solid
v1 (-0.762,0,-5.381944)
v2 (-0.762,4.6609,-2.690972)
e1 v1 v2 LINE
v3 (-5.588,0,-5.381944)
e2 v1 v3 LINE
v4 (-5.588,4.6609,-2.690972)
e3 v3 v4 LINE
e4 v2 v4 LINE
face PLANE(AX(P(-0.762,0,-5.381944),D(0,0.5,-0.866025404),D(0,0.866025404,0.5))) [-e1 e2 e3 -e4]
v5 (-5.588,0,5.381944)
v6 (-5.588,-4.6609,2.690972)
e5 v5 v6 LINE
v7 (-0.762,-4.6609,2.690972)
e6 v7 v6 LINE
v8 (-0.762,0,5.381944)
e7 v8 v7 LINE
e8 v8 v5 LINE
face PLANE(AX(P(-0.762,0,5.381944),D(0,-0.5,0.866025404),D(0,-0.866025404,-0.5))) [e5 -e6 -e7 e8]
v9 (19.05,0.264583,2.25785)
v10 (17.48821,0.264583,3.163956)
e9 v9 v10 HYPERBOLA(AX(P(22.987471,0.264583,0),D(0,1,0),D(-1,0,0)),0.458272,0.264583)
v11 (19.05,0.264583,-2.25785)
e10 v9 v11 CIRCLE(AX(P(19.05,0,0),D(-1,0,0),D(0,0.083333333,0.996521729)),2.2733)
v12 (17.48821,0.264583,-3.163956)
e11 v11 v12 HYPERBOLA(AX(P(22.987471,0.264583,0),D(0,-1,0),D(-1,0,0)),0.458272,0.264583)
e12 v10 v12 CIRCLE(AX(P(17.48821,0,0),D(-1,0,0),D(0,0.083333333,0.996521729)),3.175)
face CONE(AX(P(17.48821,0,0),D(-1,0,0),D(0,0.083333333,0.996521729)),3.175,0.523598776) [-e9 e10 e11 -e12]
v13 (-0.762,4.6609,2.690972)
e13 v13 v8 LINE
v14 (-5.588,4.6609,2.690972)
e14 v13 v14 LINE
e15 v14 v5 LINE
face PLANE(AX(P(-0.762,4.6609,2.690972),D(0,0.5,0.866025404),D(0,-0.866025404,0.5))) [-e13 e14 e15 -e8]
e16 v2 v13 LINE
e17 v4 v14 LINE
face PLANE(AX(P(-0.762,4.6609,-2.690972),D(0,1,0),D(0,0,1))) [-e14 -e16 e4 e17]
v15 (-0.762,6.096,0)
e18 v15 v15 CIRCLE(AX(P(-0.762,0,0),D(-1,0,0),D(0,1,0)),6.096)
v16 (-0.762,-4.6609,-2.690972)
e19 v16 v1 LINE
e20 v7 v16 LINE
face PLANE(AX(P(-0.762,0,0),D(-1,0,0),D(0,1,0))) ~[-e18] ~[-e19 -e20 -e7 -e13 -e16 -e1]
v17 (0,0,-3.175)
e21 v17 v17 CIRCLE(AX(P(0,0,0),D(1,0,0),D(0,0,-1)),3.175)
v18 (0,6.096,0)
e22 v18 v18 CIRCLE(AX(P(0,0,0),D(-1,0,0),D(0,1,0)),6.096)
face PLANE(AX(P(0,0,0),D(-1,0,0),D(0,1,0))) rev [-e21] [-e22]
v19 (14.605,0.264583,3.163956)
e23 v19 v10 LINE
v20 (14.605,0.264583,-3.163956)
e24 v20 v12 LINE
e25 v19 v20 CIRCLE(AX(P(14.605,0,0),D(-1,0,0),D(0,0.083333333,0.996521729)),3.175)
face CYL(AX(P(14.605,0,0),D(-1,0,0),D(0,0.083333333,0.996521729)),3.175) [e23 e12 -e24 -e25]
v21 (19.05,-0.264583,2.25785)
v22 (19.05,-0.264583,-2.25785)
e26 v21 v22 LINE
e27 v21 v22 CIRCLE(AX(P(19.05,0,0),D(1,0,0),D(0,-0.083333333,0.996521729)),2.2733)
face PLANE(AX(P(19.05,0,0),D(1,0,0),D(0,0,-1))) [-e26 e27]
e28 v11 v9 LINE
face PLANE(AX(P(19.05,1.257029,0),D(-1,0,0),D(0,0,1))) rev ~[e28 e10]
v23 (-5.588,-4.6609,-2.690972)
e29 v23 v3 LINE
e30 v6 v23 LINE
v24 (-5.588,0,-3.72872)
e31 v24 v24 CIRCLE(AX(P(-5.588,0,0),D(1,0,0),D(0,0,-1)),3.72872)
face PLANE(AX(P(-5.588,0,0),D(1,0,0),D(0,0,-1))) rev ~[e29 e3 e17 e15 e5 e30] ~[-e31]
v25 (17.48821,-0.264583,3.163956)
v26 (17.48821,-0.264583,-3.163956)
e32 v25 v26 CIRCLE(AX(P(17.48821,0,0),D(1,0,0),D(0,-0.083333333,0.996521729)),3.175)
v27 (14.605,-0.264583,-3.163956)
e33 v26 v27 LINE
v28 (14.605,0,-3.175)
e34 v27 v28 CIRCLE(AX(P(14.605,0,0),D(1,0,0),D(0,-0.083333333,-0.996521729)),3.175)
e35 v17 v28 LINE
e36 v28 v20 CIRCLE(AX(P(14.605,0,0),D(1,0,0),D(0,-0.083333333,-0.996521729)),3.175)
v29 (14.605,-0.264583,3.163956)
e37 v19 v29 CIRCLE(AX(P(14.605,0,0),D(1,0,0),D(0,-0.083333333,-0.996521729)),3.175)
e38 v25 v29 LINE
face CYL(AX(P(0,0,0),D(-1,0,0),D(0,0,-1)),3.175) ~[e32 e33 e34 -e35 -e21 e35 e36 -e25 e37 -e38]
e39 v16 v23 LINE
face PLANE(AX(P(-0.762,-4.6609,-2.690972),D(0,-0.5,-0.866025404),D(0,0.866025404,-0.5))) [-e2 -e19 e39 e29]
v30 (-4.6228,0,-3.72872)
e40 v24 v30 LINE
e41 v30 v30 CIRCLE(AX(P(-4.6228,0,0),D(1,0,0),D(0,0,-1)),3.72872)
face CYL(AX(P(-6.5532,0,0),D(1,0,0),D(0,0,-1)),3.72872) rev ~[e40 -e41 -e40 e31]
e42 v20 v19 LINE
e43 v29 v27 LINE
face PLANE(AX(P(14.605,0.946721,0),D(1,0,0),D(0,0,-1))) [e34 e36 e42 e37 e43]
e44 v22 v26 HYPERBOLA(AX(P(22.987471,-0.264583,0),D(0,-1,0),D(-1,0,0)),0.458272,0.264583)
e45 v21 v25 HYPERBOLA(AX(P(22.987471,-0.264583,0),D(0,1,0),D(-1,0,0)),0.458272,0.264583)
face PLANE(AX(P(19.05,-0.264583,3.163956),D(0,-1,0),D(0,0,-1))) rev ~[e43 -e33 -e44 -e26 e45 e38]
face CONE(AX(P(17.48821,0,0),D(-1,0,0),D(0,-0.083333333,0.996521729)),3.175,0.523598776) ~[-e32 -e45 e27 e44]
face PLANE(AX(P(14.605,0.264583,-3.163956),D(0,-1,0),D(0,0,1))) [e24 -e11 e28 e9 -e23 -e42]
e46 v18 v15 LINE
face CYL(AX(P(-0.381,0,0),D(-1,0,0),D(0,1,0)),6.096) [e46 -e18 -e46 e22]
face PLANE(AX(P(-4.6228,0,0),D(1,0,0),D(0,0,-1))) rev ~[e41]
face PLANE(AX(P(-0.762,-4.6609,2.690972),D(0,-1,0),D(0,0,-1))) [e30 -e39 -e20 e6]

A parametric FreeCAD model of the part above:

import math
import FreeCAD as App
import Part
import Sketcher

V = App.Vector
Q = App.Units.Quantity


def edges_at(feature, points):
    """Names of the edges that pass closest to the given points."""
    edges = feature.Shape.Edges
    near = lambda p: min(range(len(edges)), key=lambda i: edges[i].distToShape(Part.Vertex(*p))[0])
    return sorted({f"Edge{near(p) + 1}" for p in points})


def add_polygon(sketch, points):
    """Adds a closed chain of lines whose ends are joined by coincident constraints."""
    first, n = sketch.GeometryCount, len(points)
    for a, b in zip(points, points[1:] + points[:1]):
        sketch.addGeometry(Part.LineSegment(App.Vector(*a, 0), App.Vector(*b, 0)), False)
    for i in range(n):
        sketch.addConstraint(Sketcher.Constraint("Coincident", first + i, 2, first + (i + 1) % n, 1))

doc = App.newDocument("Part")
params = doc.addObject("Spreadsheet::Sheet", "Params")
for row, (alias, value) in enumerate([
    ("sketch1_width", "0.03 in"),
    ("sketch1_height", "0.24 in"),
    ("revolution_angle", "360 deg"),
    ("sketch2_diameter", "0.25 in"),
    ("pad1_length", "0.75 in"),
    ("sketch3_radius", "0.125 in"),
    ("pocket1_length", "0.175 in"),
    ("sketch4_radius", "0.125 in"),
    ("pad2_length", "0.175 in"),
    ("pad3_length", "0.19 in"),
    ("hole_diameter", "0.2936 in"),
    ("hole_depth", "0.038 in"),
    ("chamfer_size", "0.0355 in"),
    ("chamfer_size2", "1.56179 mm"),
    ("chamfer2_size", "0.0355 in"),
    ("chamfer2_size2", "1.56179 mm"),
], start=1):
    params.set(f"A{row}", alias)
    params.set(f"B{row}", "=" + value)
    params.setAlias(f"B{row}", alias)

body = doc.addObject("PartDesign::Body", "Body")

sketch1 = body.newObject("Sketcher::SketchObject", "Sketch")
sketch1.AttachmentSupport = (doc.getObject("XY_Plane"), [""])
sketch1.MapMode = "FlatFace"
add_polygon(sketch1, [(0, 6.096), (0, 0), (-0.762, 0), (-0.762, 6.096)])
sketch1.addConstraint([
    Sketcher.Constraint("Vertical", 0),
    Sketcher.Constraint("Horizontal", 1),
    Sketcher.Constraint("Vertical", 2),
    Sketcher.Constraint("Horizontal", 3),
    Sketcher.Constraint("Coincident", 0, 2, -1, 1),
    Sketcher.Constraint("DistanceX", 1, 2, 1, 1, Q("0.03 in")),
    Sketcher.Constraint("DistanceY", 0, 2, 0, 1, Q("0.24 in")),
])
sketch1.setExpression("Constraints[9]", "Params.sketch1_width")
sketch1.setExpression("Constraints[10]", "Params.sketch1_height")
revolution = body.newObject("PartDesign::Revolution", "Revolution")
revolution.Profile = sketch1
revolution.ReferenceAxis = (sketch1, ["H_Axis"])
revolution.setExpression("Angle", "Params.revolution_angle")

sketch2 = body.newObject("Sketcher::SketchObject", "Sketch001")
sketch2.AttachmentSupport = (doc.getObject("YZ_Plane"), [""])
sketch2.MapMode = "FlatFace"
sketch2.addGeometry(Part.Circle(V(0, 0, 0), V(0, 0, 1), 3.175), False)
sketch2.addConstraint([
    Sketcher.Constraint("Coincident", 0, 3, -1, 1),
    Sketcher.Constraint("Diameter", 0, Q("0.25 in")),
])
sketch2.setExpression("Constraints[1]", "Params.sketch2_diameter")
pad1 = body.newObject("PartDesign::Pad", "Pad")
pad1.Profile = sketch2
pad1.setExpression("Length", "Params.pad1_length")

sketch3 = body.newObject("Sketcher::SketchObject", "Sketch002")
sketch3.AttachmentSupport = (doc.getObject("YZ_Plane"), [""])
sketch3.MapMode = "FlatFace"
sketch3.AttachmentOffset = App.Placement(V(0, 0, 0.75 * 25.4), App.Rotation())
sketch3.addGeometry([
    Part.LineSegment(V(-0.264583, 3.163956, 0), V(-0.264583, -3.163956, 0)),
    Part.ArcOfCircle(Part.Circle(V(0, 0, 0), V(0, 0, 1), 3.175), math.radians(-94.780192), math.radians(94.780192)),
], False)
sketch3.addConstraint([
    Sketcher.Constraint("Coincident", 0, 1, 1, 2),
    Sketcher.Constraint("Coincident", 1, 1, 0, 2),
    Sketcher.Constraint("Vertical", 0),
    Sketcher.Constraint("Coincident", 1, 3, -1, 1),
    Sketcher.Constraint("Radius", 1, Q("0.125 in")),
    Sketcher.Constraint("DistanceY", 0, 2, 0, 1, 6.327913),
])
sketch3.setExpression("Constraints[4]", "Params.sketch3_radius")
pocket1 = body.newObject("PartDesign::Pocket", "Pocket")
pocket1.Profile = sketch3
pocket1.setExpression("Length", "Params.pocket1_length")

sketch4 = body.newObject("Sketcher::SketchObject", "Sketch003")
sketch4.AttachmentSupport = (doc.getObject("YZ_Plane"), [""])
sketch4.MapMode = "FlatFace"
sketch4.AttachmentOffset = App.Placement(V(0, 0, 0.575 * 25.4), App.Rotation())
sketch4.addGeometry([
    Part.LineSegment(V(0.264583, 3.163956, 0), V(0.264583, -3.163956, 0)),
    Part.ArcOfCircle(Part.Circle(V(0, 0, 0), V(0, 0, 1), 3.175), math.radians(-85.219808), math.radians(85.219808)),
], False)
sketch4.addConstraint([
    Sketcher.Constraint("Coincident", 0, 1, 1, 2),
    Sketcher.Constraint("Coincident", 1, 1, 0, 2),
    Sketcher.Constraint("Vertical", 0),
    Sketcher.Constraint("Coincident", 1, 3, -1, 1),
    Sketcher.Constraint("Radius", 1, Q("0.125 in")),
    Sketcher.Constraint("DistanceY", 0, 2, 0, 1, 6.327913),
])
sketch4.setExpression("Constraints[4]", "Params.sketch4_radius")
pad2 = body.newObject("PartDesign::Pad", "Pad001")
pad2.Profile = sketch4
pad2.setExpression("Length", "Params.pad2_length")

sketch5 = body.newObject("Sketcher::SketchObject", "Sketch004")
sketch5.AttachmentSupport = (doc.getObject("YZ_Plane"), [""])
sketch5.MapMode = "FlatFace"
sketch5.AttachmentOffset = App.Placement(V(0, 0, -0.03 * 25.4), App.Rotation())
add_polygon(sketch5, [(0, -5.381944), (-4.6609, -2.690972), (-4.6609, 2.690972), (0, 5.381944), (4.6609, 2.690972), (4.6609, -2.690972)])
sketch5.addConstraint([
    Sketcher.Constraint("Vertical", 1),
    Sketcher.Constraint("Vertical", 4),
    Sketcher.Constraint("Symmetric", 0, 2, 3, 2, -1, 1),
    Sketcher.Constraint("Symmetric", 2, 2, 5, 2, -1, 1),
    Sketcher.Constraint("PointOnObject", 2, 2, -2),
    Sketcher.Constraint("Parallel", 2, 5),
    Sketcher.Constraint("Horizontal", 1, 2, 3, 2),
    Sketcher.Constraint("Angle", 0, Q("150 deg")),
    Sketcher.Constraint("DistanceX", 1, 2, 3, 2, Q("0.367 in")),
    Sketcher.Constraint("DistanceY", 1, 1, 1, 2, 5.381944),
])
pad3 = body.newObject("PartDesign::Pad", "Pad002")
pad3.Profile = sketch5
pad3.setExpression("Length", "Params.pad3_length")
pad3.Reversed = True

sketch6 = body.newObject("Sketcher::SketchObject", "Sketch005")
sketch6.AttachmentSupport = (doc.getObject("YZ_Plane"), [""])
sketch6.MapMode = "FlatFace"
sketch6.AttachmentOffset = App.Placement(V(0, 0, -0.22 * 25.4), App.Rotation())
sketch6.addGeometry(Part.Circle(V(0, 0, 0), V(0, 0, 1), 3.72872), False)
sketch6.addConstraint([
    Sketcher.Constraint("Coincident", 0, 3, -1, 1),
    Sketcher.Constraint("Diameter", 0, Q("0.2936 in")),
])
doc.recompute()
hole = body.newObject("PartDesign::Hole", "Hole")
hole.Profile = sketch6
hole.ThreadType = "None"
hole.setExpression("Diameter", "Params.hole_diameter")
hole.DepthType = "Dimension"
hole.setExpression("Depth", "Params.hole_depth")
hole.DrillPoint = "Flat"
hole.Reversed = True
doc.recompute()

chamfer = body.newObject("PartDesign::Chamfer", "Chamfer")
chamfer.Base = (hole, edges_at(hole, [(19.05, 3.175, 0)]))
chamfer.ChamferType = "Two distances"
chamfer.setExpression("Size", "Params.chamfer_size")
chamfer.setExpression("Size2", "Params.chamfer_size2")
chamfer.FlipDirection = True
doc.recompute()

chamfer2 = body.newObject("PartDesign::Chamfer", "Chamfer001")
chamfer2.Base = (chamfer, edges_at(chamfer, [(19.05, -3.175, 0)]))
chamfer2.ChamferType = "Two distances"
chamfer2.setExpression("Size", "Params.chamfer2_size")
chamfer2.setExpression("Size2", "Params.chamfer2_size2")
chamfer2.FlipDirection = True

doc.recompute()
